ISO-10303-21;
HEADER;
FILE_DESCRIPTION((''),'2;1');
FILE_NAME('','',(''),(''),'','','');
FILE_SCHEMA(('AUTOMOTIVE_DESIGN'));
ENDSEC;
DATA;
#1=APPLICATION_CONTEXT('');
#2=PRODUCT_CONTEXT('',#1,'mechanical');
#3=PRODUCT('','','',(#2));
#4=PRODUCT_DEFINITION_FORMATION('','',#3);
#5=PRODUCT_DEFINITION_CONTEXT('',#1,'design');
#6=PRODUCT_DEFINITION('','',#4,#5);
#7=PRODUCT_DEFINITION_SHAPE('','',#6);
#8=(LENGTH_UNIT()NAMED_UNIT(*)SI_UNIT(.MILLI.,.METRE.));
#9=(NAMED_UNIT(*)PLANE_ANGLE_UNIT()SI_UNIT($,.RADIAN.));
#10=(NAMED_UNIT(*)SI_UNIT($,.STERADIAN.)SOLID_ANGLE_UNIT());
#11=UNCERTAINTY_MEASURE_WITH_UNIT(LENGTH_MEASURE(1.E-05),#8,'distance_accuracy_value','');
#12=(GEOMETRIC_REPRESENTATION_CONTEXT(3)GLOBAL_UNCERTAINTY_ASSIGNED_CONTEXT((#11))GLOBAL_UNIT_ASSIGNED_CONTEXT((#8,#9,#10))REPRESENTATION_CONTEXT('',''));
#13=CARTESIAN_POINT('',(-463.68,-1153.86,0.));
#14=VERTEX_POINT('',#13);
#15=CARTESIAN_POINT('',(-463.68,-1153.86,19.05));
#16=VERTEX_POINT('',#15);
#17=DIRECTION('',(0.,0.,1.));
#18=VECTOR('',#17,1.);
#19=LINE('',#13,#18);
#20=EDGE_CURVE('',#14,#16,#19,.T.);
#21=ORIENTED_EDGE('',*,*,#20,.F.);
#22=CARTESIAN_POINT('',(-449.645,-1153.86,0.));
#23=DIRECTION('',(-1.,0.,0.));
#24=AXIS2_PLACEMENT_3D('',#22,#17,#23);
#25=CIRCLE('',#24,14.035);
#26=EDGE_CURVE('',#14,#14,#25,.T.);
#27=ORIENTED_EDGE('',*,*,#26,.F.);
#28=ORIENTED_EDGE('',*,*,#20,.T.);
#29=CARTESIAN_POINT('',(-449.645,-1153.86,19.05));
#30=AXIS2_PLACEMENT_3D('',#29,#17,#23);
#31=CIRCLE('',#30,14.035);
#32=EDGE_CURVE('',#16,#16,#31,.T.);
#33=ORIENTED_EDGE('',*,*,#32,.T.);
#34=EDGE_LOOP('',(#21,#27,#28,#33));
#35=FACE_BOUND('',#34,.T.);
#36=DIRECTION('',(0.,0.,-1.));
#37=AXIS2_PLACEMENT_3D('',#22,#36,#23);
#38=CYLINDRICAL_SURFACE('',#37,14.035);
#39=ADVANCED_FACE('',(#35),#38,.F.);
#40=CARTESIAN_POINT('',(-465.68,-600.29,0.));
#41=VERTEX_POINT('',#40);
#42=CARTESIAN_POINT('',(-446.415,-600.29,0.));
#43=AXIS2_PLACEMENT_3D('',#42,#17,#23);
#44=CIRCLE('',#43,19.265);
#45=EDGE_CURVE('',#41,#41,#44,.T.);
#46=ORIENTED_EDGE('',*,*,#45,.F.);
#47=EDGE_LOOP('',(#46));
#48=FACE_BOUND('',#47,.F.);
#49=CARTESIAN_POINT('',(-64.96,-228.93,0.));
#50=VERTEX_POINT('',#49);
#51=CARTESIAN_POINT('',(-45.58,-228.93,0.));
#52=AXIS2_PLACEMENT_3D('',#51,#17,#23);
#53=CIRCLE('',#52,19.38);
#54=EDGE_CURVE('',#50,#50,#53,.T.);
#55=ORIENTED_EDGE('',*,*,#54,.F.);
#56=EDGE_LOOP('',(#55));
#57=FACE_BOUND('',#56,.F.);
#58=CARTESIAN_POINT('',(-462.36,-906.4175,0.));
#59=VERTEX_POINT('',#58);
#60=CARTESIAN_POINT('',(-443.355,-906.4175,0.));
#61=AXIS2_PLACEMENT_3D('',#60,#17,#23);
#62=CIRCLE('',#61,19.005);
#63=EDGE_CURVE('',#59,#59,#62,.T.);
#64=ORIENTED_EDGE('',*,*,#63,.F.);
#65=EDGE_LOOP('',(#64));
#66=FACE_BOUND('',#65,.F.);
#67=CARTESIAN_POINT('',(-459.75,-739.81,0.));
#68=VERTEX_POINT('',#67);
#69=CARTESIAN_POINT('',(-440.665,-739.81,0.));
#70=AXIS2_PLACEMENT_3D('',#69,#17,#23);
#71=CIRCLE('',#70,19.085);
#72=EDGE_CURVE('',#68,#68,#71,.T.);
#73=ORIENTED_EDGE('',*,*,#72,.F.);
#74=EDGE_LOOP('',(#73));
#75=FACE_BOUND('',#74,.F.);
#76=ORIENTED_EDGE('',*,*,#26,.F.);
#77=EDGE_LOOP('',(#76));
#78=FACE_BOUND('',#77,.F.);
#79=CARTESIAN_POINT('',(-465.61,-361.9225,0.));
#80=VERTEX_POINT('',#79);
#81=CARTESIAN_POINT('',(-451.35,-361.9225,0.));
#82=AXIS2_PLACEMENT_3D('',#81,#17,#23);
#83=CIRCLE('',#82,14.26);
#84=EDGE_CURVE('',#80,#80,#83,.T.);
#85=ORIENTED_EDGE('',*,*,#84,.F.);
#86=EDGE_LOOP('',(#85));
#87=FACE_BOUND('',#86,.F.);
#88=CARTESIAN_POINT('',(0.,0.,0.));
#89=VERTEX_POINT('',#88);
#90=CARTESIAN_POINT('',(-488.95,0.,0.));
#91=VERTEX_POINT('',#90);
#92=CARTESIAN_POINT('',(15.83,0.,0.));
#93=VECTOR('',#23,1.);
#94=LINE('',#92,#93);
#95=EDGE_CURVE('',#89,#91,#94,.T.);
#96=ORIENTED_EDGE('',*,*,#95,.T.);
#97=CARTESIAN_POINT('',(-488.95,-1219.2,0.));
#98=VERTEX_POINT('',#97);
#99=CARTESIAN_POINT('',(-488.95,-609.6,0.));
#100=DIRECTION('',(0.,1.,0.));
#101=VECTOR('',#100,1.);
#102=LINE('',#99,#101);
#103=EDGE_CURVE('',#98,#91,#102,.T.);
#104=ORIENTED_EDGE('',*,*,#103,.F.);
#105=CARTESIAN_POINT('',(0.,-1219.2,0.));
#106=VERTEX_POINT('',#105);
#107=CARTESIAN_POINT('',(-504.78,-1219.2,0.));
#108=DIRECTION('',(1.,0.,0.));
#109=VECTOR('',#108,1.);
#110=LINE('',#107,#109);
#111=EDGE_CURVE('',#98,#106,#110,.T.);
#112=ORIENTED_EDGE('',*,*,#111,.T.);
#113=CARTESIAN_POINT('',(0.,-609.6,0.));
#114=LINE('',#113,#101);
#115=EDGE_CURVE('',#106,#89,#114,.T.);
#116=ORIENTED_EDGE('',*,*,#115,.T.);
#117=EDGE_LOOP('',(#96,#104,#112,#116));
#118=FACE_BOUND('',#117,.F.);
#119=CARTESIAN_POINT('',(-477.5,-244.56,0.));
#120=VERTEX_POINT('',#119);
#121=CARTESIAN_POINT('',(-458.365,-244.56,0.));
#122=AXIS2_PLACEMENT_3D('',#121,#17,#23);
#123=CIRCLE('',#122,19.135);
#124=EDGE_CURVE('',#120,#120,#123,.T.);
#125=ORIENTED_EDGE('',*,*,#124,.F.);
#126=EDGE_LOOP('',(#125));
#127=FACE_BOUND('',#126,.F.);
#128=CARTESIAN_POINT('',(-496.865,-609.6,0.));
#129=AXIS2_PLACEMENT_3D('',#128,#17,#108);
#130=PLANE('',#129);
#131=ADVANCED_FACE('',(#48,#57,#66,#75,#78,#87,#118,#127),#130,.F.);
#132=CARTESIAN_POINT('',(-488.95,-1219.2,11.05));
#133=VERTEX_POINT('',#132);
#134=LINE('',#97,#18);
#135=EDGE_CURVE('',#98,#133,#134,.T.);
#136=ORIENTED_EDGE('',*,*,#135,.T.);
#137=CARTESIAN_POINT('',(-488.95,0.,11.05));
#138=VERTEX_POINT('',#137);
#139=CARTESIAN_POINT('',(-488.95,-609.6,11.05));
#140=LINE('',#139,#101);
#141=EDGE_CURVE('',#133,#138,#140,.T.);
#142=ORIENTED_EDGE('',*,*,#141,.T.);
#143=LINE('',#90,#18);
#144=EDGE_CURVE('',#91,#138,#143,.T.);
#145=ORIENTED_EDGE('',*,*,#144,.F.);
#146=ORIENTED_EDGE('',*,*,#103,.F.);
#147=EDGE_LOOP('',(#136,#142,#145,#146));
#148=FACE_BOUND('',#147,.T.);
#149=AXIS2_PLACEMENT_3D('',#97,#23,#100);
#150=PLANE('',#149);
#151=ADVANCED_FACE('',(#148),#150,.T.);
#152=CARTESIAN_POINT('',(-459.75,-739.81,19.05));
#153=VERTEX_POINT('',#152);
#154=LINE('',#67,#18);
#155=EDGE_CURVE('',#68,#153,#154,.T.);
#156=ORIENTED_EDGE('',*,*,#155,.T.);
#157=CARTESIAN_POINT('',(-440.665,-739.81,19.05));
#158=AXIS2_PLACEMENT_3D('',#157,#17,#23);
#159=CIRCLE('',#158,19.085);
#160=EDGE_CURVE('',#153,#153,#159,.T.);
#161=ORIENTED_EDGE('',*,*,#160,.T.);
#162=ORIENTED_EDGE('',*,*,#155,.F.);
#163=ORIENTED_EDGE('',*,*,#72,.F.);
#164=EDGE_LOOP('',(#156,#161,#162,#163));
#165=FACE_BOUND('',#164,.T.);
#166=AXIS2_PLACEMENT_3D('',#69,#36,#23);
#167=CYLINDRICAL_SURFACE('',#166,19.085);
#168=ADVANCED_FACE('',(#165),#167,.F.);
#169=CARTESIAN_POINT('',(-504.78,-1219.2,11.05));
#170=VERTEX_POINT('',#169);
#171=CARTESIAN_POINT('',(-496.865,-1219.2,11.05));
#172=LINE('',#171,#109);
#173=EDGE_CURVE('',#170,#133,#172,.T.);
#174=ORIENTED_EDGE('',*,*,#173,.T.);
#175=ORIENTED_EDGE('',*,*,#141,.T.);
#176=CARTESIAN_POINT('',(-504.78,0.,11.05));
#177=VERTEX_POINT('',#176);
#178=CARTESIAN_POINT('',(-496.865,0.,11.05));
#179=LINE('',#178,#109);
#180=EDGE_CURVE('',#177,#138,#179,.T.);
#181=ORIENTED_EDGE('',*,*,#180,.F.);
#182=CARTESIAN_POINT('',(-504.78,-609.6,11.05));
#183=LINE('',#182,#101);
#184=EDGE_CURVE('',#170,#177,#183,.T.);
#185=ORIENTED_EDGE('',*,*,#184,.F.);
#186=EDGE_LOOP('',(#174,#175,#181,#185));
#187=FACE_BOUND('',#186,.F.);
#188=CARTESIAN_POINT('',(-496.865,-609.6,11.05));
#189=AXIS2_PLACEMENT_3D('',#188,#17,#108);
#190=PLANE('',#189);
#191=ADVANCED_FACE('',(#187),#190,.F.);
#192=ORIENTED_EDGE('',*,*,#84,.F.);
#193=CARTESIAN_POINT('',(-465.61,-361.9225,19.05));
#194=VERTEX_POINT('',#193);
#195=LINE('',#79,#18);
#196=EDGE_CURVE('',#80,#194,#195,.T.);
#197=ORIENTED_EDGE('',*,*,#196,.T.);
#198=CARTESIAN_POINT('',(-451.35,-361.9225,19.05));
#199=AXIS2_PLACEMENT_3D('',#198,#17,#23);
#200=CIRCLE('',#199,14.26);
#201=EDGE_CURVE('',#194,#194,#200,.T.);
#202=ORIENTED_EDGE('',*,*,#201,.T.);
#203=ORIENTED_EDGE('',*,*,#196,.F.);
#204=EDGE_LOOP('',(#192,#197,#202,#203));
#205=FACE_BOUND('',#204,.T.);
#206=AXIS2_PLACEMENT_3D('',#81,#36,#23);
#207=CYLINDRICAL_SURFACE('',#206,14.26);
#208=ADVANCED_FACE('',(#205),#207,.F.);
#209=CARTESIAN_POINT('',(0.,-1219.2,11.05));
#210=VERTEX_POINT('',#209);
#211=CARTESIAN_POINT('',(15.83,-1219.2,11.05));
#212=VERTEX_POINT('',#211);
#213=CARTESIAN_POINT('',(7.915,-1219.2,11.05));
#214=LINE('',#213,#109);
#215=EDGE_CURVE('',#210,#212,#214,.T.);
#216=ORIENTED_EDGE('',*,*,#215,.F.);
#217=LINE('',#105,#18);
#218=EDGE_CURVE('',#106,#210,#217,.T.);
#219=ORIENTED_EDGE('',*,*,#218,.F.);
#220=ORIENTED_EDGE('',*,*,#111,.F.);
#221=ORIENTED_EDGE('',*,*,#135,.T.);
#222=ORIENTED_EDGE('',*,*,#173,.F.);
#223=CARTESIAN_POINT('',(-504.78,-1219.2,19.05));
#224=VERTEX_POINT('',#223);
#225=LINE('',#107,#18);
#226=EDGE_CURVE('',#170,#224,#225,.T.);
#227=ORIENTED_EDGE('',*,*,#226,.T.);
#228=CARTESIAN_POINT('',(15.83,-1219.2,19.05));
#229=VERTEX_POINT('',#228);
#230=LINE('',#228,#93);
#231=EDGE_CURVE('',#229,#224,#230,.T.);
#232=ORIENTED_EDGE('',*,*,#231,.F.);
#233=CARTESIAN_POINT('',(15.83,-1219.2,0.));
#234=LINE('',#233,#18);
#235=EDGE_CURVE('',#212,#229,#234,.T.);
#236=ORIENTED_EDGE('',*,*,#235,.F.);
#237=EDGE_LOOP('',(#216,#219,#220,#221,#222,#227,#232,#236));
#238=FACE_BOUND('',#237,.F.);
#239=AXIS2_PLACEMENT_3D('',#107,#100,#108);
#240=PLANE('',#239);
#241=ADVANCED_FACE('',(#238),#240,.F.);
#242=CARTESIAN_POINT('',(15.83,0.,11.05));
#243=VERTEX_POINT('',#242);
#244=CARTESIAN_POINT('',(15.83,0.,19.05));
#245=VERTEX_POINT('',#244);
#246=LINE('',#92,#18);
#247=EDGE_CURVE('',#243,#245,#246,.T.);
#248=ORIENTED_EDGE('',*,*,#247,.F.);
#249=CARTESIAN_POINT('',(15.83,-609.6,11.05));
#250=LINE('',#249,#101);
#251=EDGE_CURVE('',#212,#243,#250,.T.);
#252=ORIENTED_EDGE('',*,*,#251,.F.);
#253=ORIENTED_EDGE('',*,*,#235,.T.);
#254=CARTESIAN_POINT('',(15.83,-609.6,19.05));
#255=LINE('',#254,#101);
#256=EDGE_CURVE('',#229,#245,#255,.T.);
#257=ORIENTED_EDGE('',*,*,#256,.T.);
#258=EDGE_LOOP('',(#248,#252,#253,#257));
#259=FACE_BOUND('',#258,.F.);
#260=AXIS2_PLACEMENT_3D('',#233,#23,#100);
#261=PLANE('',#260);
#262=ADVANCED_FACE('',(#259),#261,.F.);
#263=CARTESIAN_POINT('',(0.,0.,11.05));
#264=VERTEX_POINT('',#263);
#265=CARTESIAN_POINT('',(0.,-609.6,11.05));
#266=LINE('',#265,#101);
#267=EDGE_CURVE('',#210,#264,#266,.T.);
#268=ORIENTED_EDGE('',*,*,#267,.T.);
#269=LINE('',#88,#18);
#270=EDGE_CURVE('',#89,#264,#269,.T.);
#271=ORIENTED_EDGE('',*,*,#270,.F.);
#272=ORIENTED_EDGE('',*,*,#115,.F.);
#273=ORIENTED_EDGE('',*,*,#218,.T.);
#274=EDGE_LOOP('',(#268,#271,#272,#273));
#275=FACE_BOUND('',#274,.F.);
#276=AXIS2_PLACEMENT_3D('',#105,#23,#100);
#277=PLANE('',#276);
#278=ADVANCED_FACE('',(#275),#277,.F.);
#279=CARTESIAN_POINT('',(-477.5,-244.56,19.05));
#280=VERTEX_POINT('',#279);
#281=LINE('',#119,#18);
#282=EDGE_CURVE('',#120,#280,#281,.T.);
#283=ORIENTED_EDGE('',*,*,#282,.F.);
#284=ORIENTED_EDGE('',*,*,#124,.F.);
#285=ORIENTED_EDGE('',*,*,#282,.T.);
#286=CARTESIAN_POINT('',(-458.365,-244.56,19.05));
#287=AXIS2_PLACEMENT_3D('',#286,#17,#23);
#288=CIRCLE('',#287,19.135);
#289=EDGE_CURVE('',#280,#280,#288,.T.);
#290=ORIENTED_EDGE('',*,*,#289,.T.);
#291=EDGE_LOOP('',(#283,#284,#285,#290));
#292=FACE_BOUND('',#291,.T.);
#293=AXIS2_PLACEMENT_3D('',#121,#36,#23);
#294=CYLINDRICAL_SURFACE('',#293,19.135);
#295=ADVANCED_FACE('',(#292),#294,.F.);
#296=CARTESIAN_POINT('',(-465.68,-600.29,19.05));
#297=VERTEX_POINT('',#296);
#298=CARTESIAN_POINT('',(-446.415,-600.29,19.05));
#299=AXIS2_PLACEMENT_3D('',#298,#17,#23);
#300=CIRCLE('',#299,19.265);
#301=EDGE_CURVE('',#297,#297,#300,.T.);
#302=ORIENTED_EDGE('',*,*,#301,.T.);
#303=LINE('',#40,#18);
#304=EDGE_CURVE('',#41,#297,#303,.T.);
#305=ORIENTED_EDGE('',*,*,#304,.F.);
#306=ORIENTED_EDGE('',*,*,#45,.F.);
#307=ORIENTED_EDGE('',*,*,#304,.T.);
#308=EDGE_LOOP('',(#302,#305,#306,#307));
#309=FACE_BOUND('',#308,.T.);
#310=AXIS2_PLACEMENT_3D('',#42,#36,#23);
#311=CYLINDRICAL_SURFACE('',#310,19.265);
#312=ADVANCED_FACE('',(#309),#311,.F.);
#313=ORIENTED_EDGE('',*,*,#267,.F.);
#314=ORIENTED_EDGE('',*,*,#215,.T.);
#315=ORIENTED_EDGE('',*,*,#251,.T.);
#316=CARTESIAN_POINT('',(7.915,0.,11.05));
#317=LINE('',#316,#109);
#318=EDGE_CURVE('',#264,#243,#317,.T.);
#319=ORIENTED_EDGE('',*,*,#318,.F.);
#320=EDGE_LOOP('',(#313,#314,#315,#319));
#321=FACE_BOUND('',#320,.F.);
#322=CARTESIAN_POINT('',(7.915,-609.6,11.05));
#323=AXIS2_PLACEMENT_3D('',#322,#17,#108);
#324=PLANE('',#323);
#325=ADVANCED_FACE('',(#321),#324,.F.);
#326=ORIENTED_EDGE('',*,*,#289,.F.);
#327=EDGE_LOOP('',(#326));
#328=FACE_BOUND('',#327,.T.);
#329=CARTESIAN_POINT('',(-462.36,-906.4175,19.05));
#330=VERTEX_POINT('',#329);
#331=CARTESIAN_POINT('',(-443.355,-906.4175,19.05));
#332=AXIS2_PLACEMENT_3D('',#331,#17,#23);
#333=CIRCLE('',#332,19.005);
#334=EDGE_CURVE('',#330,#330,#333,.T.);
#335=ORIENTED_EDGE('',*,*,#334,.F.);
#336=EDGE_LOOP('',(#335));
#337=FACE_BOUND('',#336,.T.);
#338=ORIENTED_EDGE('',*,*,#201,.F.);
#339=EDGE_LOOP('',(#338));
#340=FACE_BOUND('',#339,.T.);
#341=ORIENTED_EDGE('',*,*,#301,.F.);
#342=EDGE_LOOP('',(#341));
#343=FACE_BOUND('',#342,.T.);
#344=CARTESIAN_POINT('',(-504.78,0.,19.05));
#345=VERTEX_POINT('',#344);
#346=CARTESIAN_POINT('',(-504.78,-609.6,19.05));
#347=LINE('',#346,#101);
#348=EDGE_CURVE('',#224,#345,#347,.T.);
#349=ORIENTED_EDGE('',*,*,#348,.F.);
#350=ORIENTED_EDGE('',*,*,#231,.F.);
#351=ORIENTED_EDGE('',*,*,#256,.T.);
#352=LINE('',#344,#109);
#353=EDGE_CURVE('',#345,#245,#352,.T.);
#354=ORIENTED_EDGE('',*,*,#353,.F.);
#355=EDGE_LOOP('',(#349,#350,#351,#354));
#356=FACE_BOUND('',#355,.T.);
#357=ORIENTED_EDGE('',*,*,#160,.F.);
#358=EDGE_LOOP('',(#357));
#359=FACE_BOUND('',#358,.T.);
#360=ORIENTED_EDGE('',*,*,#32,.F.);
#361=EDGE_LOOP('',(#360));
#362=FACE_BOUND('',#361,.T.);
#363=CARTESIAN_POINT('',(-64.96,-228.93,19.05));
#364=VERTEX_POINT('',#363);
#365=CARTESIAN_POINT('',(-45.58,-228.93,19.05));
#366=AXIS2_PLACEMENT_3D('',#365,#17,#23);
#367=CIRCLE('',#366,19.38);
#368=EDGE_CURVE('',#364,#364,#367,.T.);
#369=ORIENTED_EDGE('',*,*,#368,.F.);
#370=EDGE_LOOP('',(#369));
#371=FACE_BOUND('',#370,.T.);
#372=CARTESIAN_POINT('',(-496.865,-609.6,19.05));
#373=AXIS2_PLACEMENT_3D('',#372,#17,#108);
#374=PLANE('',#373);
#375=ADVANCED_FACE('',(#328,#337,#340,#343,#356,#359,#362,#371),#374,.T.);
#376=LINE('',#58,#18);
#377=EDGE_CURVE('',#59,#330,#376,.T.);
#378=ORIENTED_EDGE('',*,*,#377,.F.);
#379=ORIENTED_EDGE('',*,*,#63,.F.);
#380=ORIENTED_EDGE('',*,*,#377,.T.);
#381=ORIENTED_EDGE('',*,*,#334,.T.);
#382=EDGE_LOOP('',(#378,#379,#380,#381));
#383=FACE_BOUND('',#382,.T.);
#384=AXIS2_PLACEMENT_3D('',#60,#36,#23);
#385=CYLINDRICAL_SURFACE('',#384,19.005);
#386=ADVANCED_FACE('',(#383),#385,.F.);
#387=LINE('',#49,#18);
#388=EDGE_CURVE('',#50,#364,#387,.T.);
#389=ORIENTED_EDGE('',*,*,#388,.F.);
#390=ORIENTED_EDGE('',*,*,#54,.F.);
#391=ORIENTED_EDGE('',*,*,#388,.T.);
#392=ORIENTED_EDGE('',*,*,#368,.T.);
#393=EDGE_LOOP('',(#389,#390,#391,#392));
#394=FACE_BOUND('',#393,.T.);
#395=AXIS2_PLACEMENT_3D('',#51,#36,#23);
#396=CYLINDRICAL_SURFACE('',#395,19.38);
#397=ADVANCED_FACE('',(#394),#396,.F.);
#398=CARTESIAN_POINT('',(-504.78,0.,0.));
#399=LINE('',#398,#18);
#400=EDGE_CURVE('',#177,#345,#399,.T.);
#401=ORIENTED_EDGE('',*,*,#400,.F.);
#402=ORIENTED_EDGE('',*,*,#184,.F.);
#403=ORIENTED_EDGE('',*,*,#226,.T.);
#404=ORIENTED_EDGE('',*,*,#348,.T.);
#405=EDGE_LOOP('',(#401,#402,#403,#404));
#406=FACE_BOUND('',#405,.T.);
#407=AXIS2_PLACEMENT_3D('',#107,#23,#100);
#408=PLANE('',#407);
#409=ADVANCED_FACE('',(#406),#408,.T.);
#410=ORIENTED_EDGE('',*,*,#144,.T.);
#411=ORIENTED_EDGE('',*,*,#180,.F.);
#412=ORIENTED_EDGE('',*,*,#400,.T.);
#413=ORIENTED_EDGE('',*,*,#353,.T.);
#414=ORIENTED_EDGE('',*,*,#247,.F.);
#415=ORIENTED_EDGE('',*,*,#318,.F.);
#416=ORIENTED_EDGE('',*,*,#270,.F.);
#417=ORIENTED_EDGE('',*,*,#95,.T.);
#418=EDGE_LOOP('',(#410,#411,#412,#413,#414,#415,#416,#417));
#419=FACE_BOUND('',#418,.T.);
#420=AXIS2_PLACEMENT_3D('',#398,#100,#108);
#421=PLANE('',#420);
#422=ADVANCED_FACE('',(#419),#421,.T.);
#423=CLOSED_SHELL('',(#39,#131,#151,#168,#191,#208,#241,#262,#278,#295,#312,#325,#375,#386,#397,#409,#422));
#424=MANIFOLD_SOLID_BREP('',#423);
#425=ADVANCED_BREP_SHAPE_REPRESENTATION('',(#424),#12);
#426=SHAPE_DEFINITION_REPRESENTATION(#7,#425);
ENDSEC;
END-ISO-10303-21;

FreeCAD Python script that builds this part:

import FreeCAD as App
import Part
import Sketcher
Q = App.Units.Quantity

doc = App.newDocument("Part")
body = doc.addObject("PartDesign::Body", "Body")

sketch1 = body.newObject("Sketcher::SketchObject", "Sketch")
sketch1.AttachmentSupport = (doc.getObject("XY_Plane"), [""])
sketch1.MapMode = "FlatFace"
sketch1.addGeometry(Part.LineSegment(App.Vector(16, -1219, 0), App.Vector(16, 0, 0)), False)
sketch1.addGeometry(Part.LineSegment(App.Vector(16, 0, 0), App.Vector(-505, 0, 0)), False)
sketch1.addGeometry(Part.LineSegment(App.Vector(-505, 0, 0), App.Vector(-505, -1219, 0)), False)
sketch1.addGeometry(Part.LineSegment(App.Vector(-505, -1219, 0), App.Vector(16, -1219, 0)), False)
sketch1.addGeometry(Part.Circle(App.Vector(-450, -1154, 0), App.Vector(0, 0, 1), 14), False)
sketch1.addGeometry(Part.Circle(App.Vector(-443, -906, 0), App.Vector(0, 0, 1), 19), False)
sketch1.addGeometry(Part.Circle(App.Vector(-441, -740, 0), App.Vector(0, 0, 1), 19), False)
sketch1.addGeometry(Part.Circle(App.Vector(-446, -600, 0), App.Vector(0, 0, 1), 19), False)
sketch1.addGeometry(Part.Circle(App.Vector(-451, -362, 0), App.Vector(0, 0, 1), 14), False)
sketch1.addGeometry(Part.Circle(App.Vector(-458, -245, 0), App.Vector(0, 0, 1), 19), False)
sketch1.addGeometry(Part.Circle(App.Vector(-46, -229, 0), App.Vector(0, 0, 1), 19), False)
sketch1.addConstraint(Sketcher.Constraint("Coincident", 0, 2, 1, 1))
sketch1.addConstraint(Sketcher.Constraint("Coincident", 1, 2, 2, 1))
sketch1.addConstraint(Sketcher.Constraint("Coincident", 2, 2, 3, 1))
sketch1.addConstraint(Sketcher.Constraint("Coincident", 3, 2, 0, 1))
sketch1.addConstraint(Sketcher.Constraint("Vertical", 0))
sketch1.addConstraint(Sketcher.Constraint("Horizontal", 1))
sketch1.addConstraint(Sketcher.Constraint("Vertical", 2))
sketch1.addConstraint(Sketcher.Constraint("Horizontal", 3))
sketch1.addConstraint(Sketcher.Constraint("PointOnObject", 0, 2, -1))
sketch1.addConstraint(Sketcher.Constraint("DistanceY", 0, 1, 0, 2, Q("48 in")))
sketch1.addConstraint(Sketcher.Constraint("Diameter", 4, 28.07))
sketch1.addConstraint(Sketcher.Constraint("Diameter", 5, 38.01))
sketch1.addConstraint(Sketcher.Constraint("Diameter", 6, 38.17))
sketch1.addConstraint(Sketcher.Constraint("Diameter", 7, 38.53))
sketch1.addConstraint(Sketcher.Constraint("Diameter", 8, 28.52))
sketch1.addConstraint(Sketcher.Constraint("Diameter", 9, 38.27))
sketch1.addConstraint(Sketcher.Constraint("Diameter", 10, 38.76))
sketch1.addConstraint(Sketcher.Constraint("DistanceX", 1, 2, 1, 1, 520.61))
sketch1.addConstraint(Sketcher.Constraint("DistanceX", 4, 3, -1, 1, 449.645))
sketch1.addConstraint(Sketcher.Constraint("DistanceY", 4, 3, -1, 1, 1153.86))
sketch1.addConstraint(Sketcher.Constraint("DistanceX", 5, 3, -1, 1, 443.355))
sketch1.addConstraint(Sketcher.Constraint("DistanceY", 5, 3, -1, 1, 906.4175))
sketch1.addConstraint(Sketcher.Constraint("DistanceX", 6, 3, -1, 1, 440.665))
sketch1.addConstraint(Sketcher.Constraint("DistanceY", 6, 3, -1, 1, 739.81))
sketch1.addConstraint(Sketcher.Constraint("DistanceX", 7, 3, -1, 1, 446.415))
sketch1.addConstraint(Sketcher.Constraint("DistanceY", 7, 3, -1, 1, 600.29))
sketch1.addConstraint(Sketcher.Constraint("DistanceX", 8, 3, -1, 1, 451.35))
sketch1.addConstraint(Sketcher.Constraint("DistanceY", 8, 3, -1, 1, 361.9225))
sketch1.addConstraint(Sketcher.Constraint("DistanceX", 9, 3, -1, 1, 458.365))
sketch1.addConstraint(Sketcher.Constraint("DistanceY", 9, 3, -1, 1, 244.56))
sketch1.addConstraint(Sketcher.Constraint("DistanceX", 10, 3, -1, 1, 45.58))
sketch1.addConstraint(Sketcher.Constraint("DistanceY", 10, 3, -1, 1, 228.93))
sketch1.addConstraint(Sketcher.Constraint("DistanceX", -1, 1, 0, 2, 15.83))
pad1 = body.newObject("PartDesign::Pad", "Pad")
pad1.Profile = sketch1
pad1.Length = Q("0.75 in")

sketch2 = body.newObject("Sketcher::SketchObject", "Sketch001")
sketch2.AttachmentSupport = (doc.getObject("XY_Plane"), [""])
sketch2.MapMode = "FlatFace"
sketch2.addGeometry(Part.LineSegment(App.Vector(-505, 0, 0), App.Vector(-505, -1219, 0)), False)
sketch2.addGeometry(Part.LineSegment(App.Vector(-505, -1219, 0), App.Vector(-489, -1219, 0)), False)
sketch2.addGeometry(Part.LineSegment(App.Vector(-489, -1219, 0), App.Vector(-489, 0, 0)), False)
sketch2.addGeometry(Part.LineSegment(App.Vector(-489, 0, 0), App.Vector(-505, 0, 0)), False)
sketch2.addGeometry(Part.LineSegment(App.Vector(0, 0, 0), App.Vector(0, -1219, 0)), False)
sketch2.addGeometry(Part.LineSegment(App.Vector(0, -1219, 0), App.Vector(16, -1219, 0)), False)
sketch2.addGeometry(Part.LineSegment(App.Vector(16, -1219, 0), App.Vector(16, 0, 0)), False)
sketch2.addGeometry(Part.LineSegment(App.Vector(16, 0, 0), App.Vector(0, 0, 0)), False)
sketch2.addConstraint(Sketcher.Constraint("Coincident", 0, 2, 1, 1))
sketch2.addConstraint(Sketcher.Constraint("Coincident", 1, 2, 2, 1))
sketch2.addConstraint(Sketcher.Constraint("Coincident", 2, 2, 3, 1))
sketch2.addConstraint(Sketcher.Constraint("Coincident", 3, 2, 0, 1))
sketch2.addConstraint(Sketcher.Constraint("Coincident", 4, 2, 5, 1))
sketch2.addConstraint(Sketcher.Constraint("Coincident", 5, 2, 6, 1))
sketch2.addConstraint(Sketcher.Constraint("Coincident", 6, 2, 7, 1))
sketch2.addConstraint(Sketcher.Constraint("Coincident", 7, 2, 4, 1))
sketch2.addConstraint(Sketcher.Constraint("Vertical", 0))
sketch2.addConstraint(Sketcher.Constraint("Horizontal", 1))
sketch2.addConstraint(Sketcher.Constraint("Vertical", 2))
sketch2.addConstraint(Sketcher.Constraint("Horizontal", 3))
sketch2.addConstraint(Sketcher.Constraint("Vertical", 4))
sketch2.addConstraint(Sketcher.Constraint("Horizontal", 5))
sketch2.addConstraint(Sketcher.Constraint("Vertical", 6))
sketch2.addConstraint(Sketcher.Constraint("Horizontal", 7))
sketch2.addConstraint(Sketcher.Constraint("Coincident", 7, 2, -1, 1))
sketch2.addConstraint(Sketcher.Constraint("PointOnObject", 2, 2, -1))
sketch2.addConstraint(Sketcher.Constraint("Horizontal", 1, 2, 4, 2))
sketch2.addConstraint(Sketcher.Constraint("Equal", 3, 5))
sketch2.addConstraint(Sketcher.Constraint("DistanceY", 0, 2, 0, 1, Q("48 in")))
sketch2.addConstraint(Sketcher.Constraint("DistanceX", 1, 2, -1, 1, Q("19.25 in")))
sketch2.addConstraint(Sketcher.Constraint("DistanceX", 1, 1, 1, 2, 15.83))
pocket1 = body.newObject("PartDesign::Pocket", "Pocket")
pocket1.Profile = sketch2
pocket1.Length = 11.05
pocket1.Reversed = True

doc.recompute()
